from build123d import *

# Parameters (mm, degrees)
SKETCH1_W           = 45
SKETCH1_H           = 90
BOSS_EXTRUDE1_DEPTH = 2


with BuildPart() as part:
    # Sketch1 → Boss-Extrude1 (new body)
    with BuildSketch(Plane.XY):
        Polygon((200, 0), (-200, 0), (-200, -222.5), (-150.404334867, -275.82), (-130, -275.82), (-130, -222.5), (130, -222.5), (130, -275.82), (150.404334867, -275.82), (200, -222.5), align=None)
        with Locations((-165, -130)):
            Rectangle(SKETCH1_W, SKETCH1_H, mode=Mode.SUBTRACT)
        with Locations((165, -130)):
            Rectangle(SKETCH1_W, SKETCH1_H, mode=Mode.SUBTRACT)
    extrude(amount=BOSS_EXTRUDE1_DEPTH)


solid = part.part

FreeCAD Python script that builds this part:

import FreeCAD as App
import Part
import Sketcher

V = App.Vector
Q = App.Units.Quantity


def add_polygon(sketch, points):
    """Adds a closed chain of lines whose ends are joined by coincident constraints."""
    first, n = sketch.GeometryCount, len(points)
    for a, b in zip(points, points[1:] + points[:1]):
        sketch.addGeometry(Part.LineSegment(App.Vector(*a, 0), App.Vector(*b, 0)), False)
    for i in range(n):
        sketch.addConstraint(Sketcher.Constraint("Coincident", first + i, 2, first + (i + 1) % n, 1))

doc = App.newDocument("Part")
body = doc.addObject("PartDesign::Body", "Body")

sketch1 = body.newObject("Sketcher::SketchObject", "Sketch")
sketch1.AttachmentSupport = (doc.getObject("XY_Plane"), [""])
sketch1.MapMode = "FlatFace"
add_polygon(sketch1, [(200, 0), (-200, 0), (-200, -222), (-150, -276), (-130, -276), (-130, -222), (130, -222), (130, -276), (150, -276), (200, -222)])
add_polygon(sketch1, [(-142, -175), (-188, -175), (-188, -85), (-142, -85)])
add_polygon(sketch1, [(188, -175), (142, -175), (142, -85), (188, -85)])
sketch1.addConstraint([
    Sketcher.Constraint("Horizontal", 0),
    Sketcher.Constraint("Vertical", 1),
    Sketcher.Constraint("Horizontal", 3),
    Sketcher.Constraint("Vertical", 4),
    Sketcher.Constraint("Horizontal", 5),
    Sketcher.Constraint("Vertical", 6),
    Sketcher.Constraint("Horizontal", 7),
    Sketcher.Constraint("Vertical", 9),
    Sketcher.Constraint("Horizontal", 10),
    Sketcher.Constraint("Vertical", 11),
    Sketcher.Constraint("Horizontal", 12),
    Sketcher.Constraint("Vertical", 13),
    Sketcher.Constraint("Horizontal", 14),
    Sketcher.Constraint("Vertical", 15),
    Sketcher.Constraint("Horizontal", 16),
    Sketcher.Constraint("Vertical", 17),
    Sketcher.Constraint("Symmetric", 0, 2, 9, 2, -1, 1),
    Sketcher.Constraint("Symmetric", 3, 2, 6, 2, -2),
    Sketcher.Constraint("Symmetric", 13, 2, 14, 2, -2),
    Sketcher.Constraint("Symmetric", 11, 2, 16, 2, -2),
    Sketcher.Constraint("Horizontal", 1, 2, 4, 2),
    Sketcher.Constraint("Horizontal", 5, 2, 8, 2),
    Sketcher.Constraint("Equal", 3, 7),
    Sketcher.Constraint("DistanceX", 0, 2, 0, 1, Q("400 mm")),
    Sketcher.Constraint("DistanceX", 5, 1, 5, 2, Q("260 mm")),
    Sketcher.Constraint("DistanceX", 10, 2, 10, 1, Q("45 mm")),
    Sketcher.Constraint("DistanceY", 11, 1, 11, 2, Q("90 mm")),
    Sketcher.Constraint("DistanceY", 1, 2, 1, 1, Q("222.5 mm")),
    Sketcher.Constraint("DistanceY", 10, 2, -1, 1, Q("175 mm")),
    Sketcher.Constraint("DistanceY", 4, 1, 4, 2, Q("53.32 mm")),
    Sketcher.Constraint("DistanceX", 10, 2, -1, 1, Q("187.5 mm")),
    Sketcher.Constraint("Distance", 2, Q("72.82 mm")),
])
pad1 = body.newObject("PartDesign::Pad", "Pad")
pad1.Profile = sketch1
pad1.Length = 2

doc.recompute()
